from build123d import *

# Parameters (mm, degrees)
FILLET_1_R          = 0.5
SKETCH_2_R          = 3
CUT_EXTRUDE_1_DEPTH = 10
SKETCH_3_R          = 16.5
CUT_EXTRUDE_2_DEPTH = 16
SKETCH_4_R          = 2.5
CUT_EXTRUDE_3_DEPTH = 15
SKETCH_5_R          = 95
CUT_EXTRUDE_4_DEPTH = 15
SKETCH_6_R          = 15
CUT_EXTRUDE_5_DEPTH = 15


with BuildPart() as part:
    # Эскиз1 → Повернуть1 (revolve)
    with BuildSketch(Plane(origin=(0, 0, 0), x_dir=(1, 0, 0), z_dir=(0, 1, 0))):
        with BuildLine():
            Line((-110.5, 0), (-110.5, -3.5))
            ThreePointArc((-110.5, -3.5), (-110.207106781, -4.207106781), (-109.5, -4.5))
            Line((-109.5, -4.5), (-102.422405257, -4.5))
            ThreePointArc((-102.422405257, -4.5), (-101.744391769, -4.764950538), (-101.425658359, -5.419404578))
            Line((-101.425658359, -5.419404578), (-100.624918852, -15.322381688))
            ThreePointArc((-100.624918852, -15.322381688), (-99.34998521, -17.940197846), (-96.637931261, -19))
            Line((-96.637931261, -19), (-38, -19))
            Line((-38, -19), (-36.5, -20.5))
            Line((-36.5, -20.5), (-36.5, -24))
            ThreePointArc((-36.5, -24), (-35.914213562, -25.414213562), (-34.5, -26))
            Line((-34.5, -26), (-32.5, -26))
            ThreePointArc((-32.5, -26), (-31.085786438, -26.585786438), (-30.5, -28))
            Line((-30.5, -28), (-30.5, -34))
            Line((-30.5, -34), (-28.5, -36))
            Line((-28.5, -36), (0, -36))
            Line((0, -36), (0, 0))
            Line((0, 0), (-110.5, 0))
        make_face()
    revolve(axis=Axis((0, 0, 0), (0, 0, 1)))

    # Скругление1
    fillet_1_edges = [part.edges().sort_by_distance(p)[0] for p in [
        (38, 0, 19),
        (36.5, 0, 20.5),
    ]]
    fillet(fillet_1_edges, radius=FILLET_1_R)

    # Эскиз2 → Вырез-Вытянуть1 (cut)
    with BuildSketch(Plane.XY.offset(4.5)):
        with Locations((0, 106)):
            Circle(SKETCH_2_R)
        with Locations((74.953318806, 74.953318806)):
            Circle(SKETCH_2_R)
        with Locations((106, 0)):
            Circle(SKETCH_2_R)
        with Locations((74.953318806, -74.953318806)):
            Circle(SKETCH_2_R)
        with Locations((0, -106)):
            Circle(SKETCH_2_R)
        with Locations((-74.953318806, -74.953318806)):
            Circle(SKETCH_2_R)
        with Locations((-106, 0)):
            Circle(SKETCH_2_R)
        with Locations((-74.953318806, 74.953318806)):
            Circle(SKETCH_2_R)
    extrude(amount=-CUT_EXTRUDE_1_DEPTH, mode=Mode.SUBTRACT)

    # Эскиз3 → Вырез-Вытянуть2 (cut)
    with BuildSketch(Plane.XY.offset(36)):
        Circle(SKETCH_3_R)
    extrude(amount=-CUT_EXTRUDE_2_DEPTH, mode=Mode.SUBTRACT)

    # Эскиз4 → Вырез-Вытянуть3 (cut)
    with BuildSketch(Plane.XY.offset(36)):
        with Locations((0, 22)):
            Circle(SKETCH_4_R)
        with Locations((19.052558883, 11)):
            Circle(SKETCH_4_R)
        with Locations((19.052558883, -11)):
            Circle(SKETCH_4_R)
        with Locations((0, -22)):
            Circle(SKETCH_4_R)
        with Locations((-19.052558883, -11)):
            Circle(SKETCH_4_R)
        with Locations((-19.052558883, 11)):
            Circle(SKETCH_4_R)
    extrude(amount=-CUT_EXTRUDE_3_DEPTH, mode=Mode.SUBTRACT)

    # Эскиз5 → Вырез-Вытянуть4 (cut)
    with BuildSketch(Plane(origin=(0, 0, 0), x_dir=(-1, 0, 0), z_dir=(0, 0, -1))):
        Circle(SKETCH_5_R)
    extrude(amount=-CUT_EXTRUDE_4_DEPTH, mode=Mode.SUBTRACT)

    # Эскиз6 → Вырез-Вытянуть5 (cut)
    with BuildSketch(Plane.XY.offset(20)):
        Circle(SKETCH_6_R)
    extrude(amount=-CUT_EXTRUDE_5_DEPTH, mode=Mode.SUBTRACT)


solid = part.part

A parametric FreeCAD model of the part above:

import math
import FreeCAD as App
import Part
import Sketcher
Q = App.Units.Quantity


def edges_at(feature, points):
    """Names of the edges that pass closest to the given points."""
    edges = feature.Shape.Edges
    near = lambda p: min(range(len(edges)), key=lambda i: edges[i].distToShape(Part.Vertex(*p))[0])
    return sorted({f"Edge{near(p) + 1}" for p in points})

doc = App.newDocument("Part")
params = doc.addObject("Spreadsheet::Sheet", "Params")
for row, (alias, value) in enumerate([
    ("sketch1_radius", "1 mm"),
    ("sketch1_radius2", "4 mm"),
    ("sketch1_radius3", "2 mm"),
    ("sketch1_width", "2 mm"),
    ("sketch1_height", "6 mm"),
    ("revolution_angle", "360 deg"),
    ("fillet_radius", "0.5 mm"),
    ("sketch2_diameter", "6 mm"),
    ("pocket1_length", "10 mm"),
    ("sketch3_diameter", "33 mm"),
    ("pocket2_length", "16 mm"),
    ("sketch4_diameter", "5 mm"),
    ("pocket3_length", "15 mm"),
    ("sketch5_diameter", "190 mm"),
    ("pocket4_length", "15 mm"),
    ("sketch6_diameter", "30 mm"),
    ("pocket5_length", "15 mm"),
], start=1):
    params.set(f"A{row}", alias)
    params.set(f"B{row}", "=" + value)
    params.setAlias(f"B{row}", alias)

body = doc.addObject("PartDesign::Body", "Body")

sketch1 = body.newObject("Sketcher::SketchObject", "Sketch")
sketch1.AttachmentSupport = (doc.getObject("XZ_Plane"), [""])
sketch1.MapMode = "FlatFace"
sketch1.addGeometry([
    Part.LineSegment(App.Vector(-110.5, 0, 0), App.Vector(-110.5, 3.5, 0)),
    Part.ArcOfCircle(Part.Circle(App.Vector(-109.5, 3.5, 0), App.Vector(0, 0, 1), 1), math.radians(90), math.radians(180)),
    Part.LineSegment(App.Vector(-109.5, 4.5, 0), App.Vector(-102.4, 4.5, 0)),
    Part.ArcOfCircle(Part.Circle(App.Vector(-102.4, 5.5, 0), App.Vector(0, 0, 1), 1), math.radians(-90), math.radians(-5)),
    Part.LineSegment(App.Vector(-101.4, 5.4, 0), App.Vector(-100.6, 15.3, 0)),
    Part.ArcOfCircle(Part.Circle(App.Vector(-96.6, 15, 0), App.Vector(0, 0, 1), 4), math.radians(90), math.radians(175)),
    Part.LineSegment(App.Vector(-96.6, 19, 0), App.Vector(-38, 19, 0)),
    Part.LineSegment(App.Vector(-38, 19, 0), App.Vector(-36.5, 20.5, 0)),
    Part.LineSegment(App.Vector(-36.5, 20.5, 0), App.Vector(-36.5, 24, 0)),
    Part.ArcOfCircle(Part.Circle(App.Vector(-34.5, 24, 0), App.Vector(0, 0, 1), 2), math.radians(90), math.radians(180)),
    Part.LineSegment(App.Vector(-34.5, 26, 0), App.Vector(-32.5, 26, 0)),
    Part.ArcOfCircle(Part.Circle(App.Vector(-32.5, 28, 0), App.Vector(0, 0, 1), 2), math.radians(-90), math.radians(0)),
    Part.LineSegment(App.Vector(-30.5, 28, 0), App.Vector(-30.5, 34, 0)),
    Part.LineSegment(App.Vector(-30.5, 34, 0), App.Vector(-28.5, 36, 0)),
    Part.LineSegment(App.Vector(-28.5, 36, 0), App.Vector(0, 36, 0)),
    Part.LineSegment(App.Vector(0, 36, 0), App.Vector(0, 0, 0)),
    Part.LineSegment(App.Vector(0, 0, 0), App.Vector(-110.5, 0, 0)),
], False)
sketch1.addConstraint([
    Sketcher.Constraint("Tangent", 0, 2, 1, 2),
    Sketcher.Constraint("Tangent", 1, 1, 2, 1),
    Sketcher.Constraint("Tangent", 2, 2, 3, 1),
    Sketcher.Constraint("Tangent", 3, 2, 4, 1),
    Sketcher.Constraint("Tangent", 4, 2, 5, 2),
    Sketcher.Constraint("Tangent", 5, 1, 6, 1),
    Sketcher.Constraint("Coincident", 6, 2, 7, 1),
    Sketcher.Constraint("Coincident", 7, 2, 8, 1),
    Sketcher.Constraint("Tangent", 8, 2, 9, 2),
    Sketcher.Constraint("Tangent", 9, 1, 10, 1),
    Sketcher.Constraint("Tangent", 10, 2, 11, 1),
    Sketcher.Constraint("Tangent", 11, 2, 12, 1),
    Sketcher.Constraint("Coincident", 12, 2, 13, 1),
    Sketcher.Constraint("Coincident", 13, 2, 14, 1),
    Sketcher.Constraint("Coincident", 14, 2, 15, 1),
    Sketcher.Constraint("Coincident", 15, 2, 16, 1),
    Sketcher.Constraint("Coincident", 16, 2, 0, 1),
    Sketcher.Constraint("Vertical", 0),
    Sketcher.Constraint("Horizontal", 2),
    Sketcher.Constraint("Horizontal", 6),
    Sketcher.Constraint("Vertical", 8),
    Sketcher.Constraint("Horizontal", 10),
    Sketcher.Constraint("Vertical", 12),
    Sketcher.Constraint("Horizontal", 14),
    Sketcher.Constraint("Vertical", 15),
    Sketcher.Constraint("Horizontal", 16),
    Sketcher.Constraint("Coincident", 15, 2, -1, 1),
    Sketcher.Constraint("Equal", 1, 3),
    Sketcher.Constraint("Equal", 9, 11),
    Sketcher.Constraint("Parallel", 7, 13),
    Sketcher.Constraint("Equal", 0, 8),
    Sketcher.Constraint("Radius", 1, Q("1 mm")),
    Sketcher.Constraint("Radius", 5, Q("4 mm")),
    Sketcher.Constraint("Radius", 9, Q("2 mm")),
    Sketcher.Constraint("DistanceX", 10, 1, 10, 2, Q("2 mm")),
    Sketcher.Constraint("DistanceY", 12, 1, 12, 2, Q("6 mm")),
    Sketcher.Constraint("DistanceY", 15, 2, 15, 1, Q("36 mm")),
    Sketcher.Constraint("Angle", 7, Q("45 deg")),
    Sketcher.Constraint("DistanceX", 14, 1, 14, 2, Q("28.5 mm")),
    Sketcher.Constraint("DistanceX", 16, 2, 16, 1, Q("110.5 mm")),
    Sketcher.Constraint("DistanceY", 0, 1, 0, 2, Q("3.5 mm")),
    Sketcher.Constraint("DistanceY", -1, 1, 5, 3, Q("15 mm")),
    Sketcher.Constraint("DistanceY", -1, 1, 9, 3, Q("24 mm")),
    Sketcher.Constraint("DistanceX", 6, 1, 6, 2, Q("58.637931 mm")),
    Sketcher.Constraint("DistanceX", 2, 1, 2, 2, Q("7.077595 mm")),
])
sketch1.setExpression("Constraints[31]", "Params.sketch1_radius")
sketch1.setExpression("Constraints[32]", "Params.sketch1_radius2")
sketch1.setExpression("Constraints[33]", "Params.sketch1_radius3")
sketch1.setExpression("Constraints[34]", "Params.sketch1_width")
sketch1.setExpression("Constraints[35]", "Params.sketch1_height")
revolution = body.newObject("PartDesign::Revolution", "Revolution")
revolution.Profile = sketch1
revolution.ReferenceAxis = (sketch1, ["V_Axis"])
revolution.setExpression("Angle", "Params.revolution_angle")
doc.recompute()

fillet = body.newObject("PartDesign::Fillet", "Fillet")
fillet.Base = (revolution, edges_at(revolution, [(38, 0, 19), (36.5, 0, 20.5)]))
fillet.setExpression("Radius", "Params.fillet_radius")

sketch2 = body.newObject("Sketcher::SketchObject", "Sketch001")
sketch2.AttachmentSupport = (doc.getObject("XY_Plane"), [""])
sketch2.MapMode = "FlatFace"
sketch2.AttachmentOffset = App.Placement(App.Vector(0, 0, 4.5), App.Rotation())
sketch2.addGeometry([
    Part.Circle(App.Vector(0, 106, 0), App.Vector(0, 0, 1), 3),
    Part.Circle(App.Vector(75, 75, 0), App.Vector(0, 0, 1), 3),
    Part.Circle(App.Vector(106, 0, 0), App.Vector(0, 0, 1), 3),
    Part.Circle(App.Vector(75, -75, 0), App.Vector(0, 0, 1), 3),
    Part.Circle(App.Vector(0, -106, 0), App.Vector(0, 0, 1), 3),
    Part.Circle(App.Vector(-75, -75, 0), App.Vector(0, 0, 1), 3),
    Part.Circle(App.Vector(-106, 0, 0), App.Vector(0, 0, 1), 3),
    Part.Circle(App.Vector(-75, 75, 0), App.Vector(0, 0, 1), 3),
], False)
sketch2.addConstraint([
    Sketcher.Constraint("Equal", 0, 1),
    Sketcher.Constraint("Equal", 1, 2),
    Sketcher.Constraint("Equal", 2, 3),
    Sketcher.Constraint("Equal", 3, 4),
    Sketcher.Constraint("Equal", 4, 5),
    Sketcher.Constraint("Equal", 5, 6),
    Sketcher.Constraint("Equal", 6, 7),
    Sketcher.Constraint("Symmetric", 0, 3, 4, 3, -1, 1),
    Sketcher.Constraint("Symmetric", 1, 3, 5, 3, -1, 1),
    Sketcher.Constraint("Symmetric", 2, 3, 6, 3, -1, 1),
    Sketcher.Constraint("Symmetric", 3, 3, 7, 3, -1, 1),
    Sketcher.Constraint("Symmetric", 3, 3, 5, 3, -2),
    Sketcher.Constraint("PointOnObject", 0, 3, -2),
    Sketcher.Constraint("PointOnObject", 2, 3, -1),
    Sketcher.Constraint("Diameter", 0, Q("6 mm")),
    Sketcher.Constraint("DistanceY", -1, 1, 0, 3, Q("106 mm")),
    Sketcher.Constraint("DistanceX", -1, 1, 2, 3, Q("106 mm")),
    Sketcher.Constraint("DistanceX", -1, 1, 1, 3, Q("74.953319 mm")),
    Sketcher.Constraint("DistanceY", -1, 1, 1, 3, Q("74.953319 mm")),
])
sketch2.setExpression("Constraints[14]", "Params.sketch2_diameter")
pocket1 = body.newObject("PartDesign::Pocket", "Pocket")
pocket1.Profile = sketch2
pocket1.setExpression("Length", "Params.pocket1_length")

sketch3 = body.newObject("Sketcher::SketchObject", "Sketch002")
sketch3.AttachmentSupport = (doc.getObject("XY_Plane"), [""])
sketch3.MapMode = "FlatFace"
sketch3.AttachmentOffset = App.Placement(App.Vector(0, 0, 36), App.Rotation())
sketch3.addGeometry(Part.Circle(App.Vector(0, 0, 0), App.Vector(0, 0, 1), 16), False)
sketch3.addConstraint([
    Sketcher.Constraint("Coincident", 0, 3, -1, 1),
    Sketcher.Constraint("Diameter", 0, Q("33 mm")),
])
sketch3.setExpression("Constraints[1]", "Params.sketch3_diameter")
pocket2 = body.newObject("PartDesign::Pocket", "Pocket001")
pocket2.Profile = sketch3
pocket2.setExpression("Length", "Params.pocket2_length")

sketch4 = body.newObject("Sketcher::SketchObject", "Sketch003")
sketch4.AttachmentSupport = (doc.getObject("XY_Plane"), [""])
sketch4.MapMode = "FlatFace"
sketch4.AttachmentOffset = App.Placement(App.Vector(0, 0, 36), App.Rotation())
sketch4.addGeometry([
    Part.Circle(App.Vector(0, 22, 0), App.Vector(0, 0, 1), 2.5),
    Part.Circle(App.Vector(19.1, 11, 0), App.Vector(0, 0, 1), 2.5),
    Part.Circle(App.Vector(19.1, -11, 0), App.Vector(0, 0, 1), 2.5),
    Part.Circle(App.Vector(0, -22, 0), App.Vector(0, 0, 1), 2.5),
    Part.Circle(App.Vector(-19.1, -11, 0), App.Vector(0, 0, 1), 2.5),
    Part.Circle(App.Vector(-19.1, 11, 0), App.Vector(0, 0, 1), 2.5),
], False)
sketch4.addConstraint([
    Sketcher.Constraint("Equal", 0, 1),
    Sketcher.Constraint("Equal", 1, 2),
    Sketcher.Constraint("Equal", 2, 3),
    Sketcher.Constraint("Equal", 3, 4),
    Sketcher.Constraint("Equal", 4, 5),
    Sketcher.Constraint("Symmetric", 0, 3, 3, 3, -1, 1),
    Sketcher.Constraint("Symmetric", 1, 3, 4, 3, -1, 1),
    Sketcher.Constraint("Symmetric", 2, 3, 5, 3, -1, 1),
    Sketcher.Constraint("Symmetric", 2, 3, 4, 3, -2),
    Sketcher.Constraint("PointOnObject", 0, 3, -2),
    Sketcher.Constraint("Diameter", 0, Q("5 mm")),
    Sketcher.Constraint("DistanceY", -1, 1, 0, 3, Q("22 mm")),
    Sketcher.Constraint("DistanceY", -1, 1, 1, 3, Q("11 mm")),
    Sketcher.Constraint("DistanceX", -1, 1, 1, 3, Q("19.052559 mm")),
])
sketch4.setExpression("Constraints[10]", "Params.sketch4_diameter")
pocket3 = body.newObject("PartDesign::Pocket", "Pocket002")
pocket3.Profile = sketch4
pocket3.setExpression("Length", "Params.pocket3_length")

sketch5 = body.newObject("Sketcher::SketchObject", "Sketch004")
sketch5.AttachmentSupport = (doc.getObject("XY_Plane"), [""])
sketch5.MapMode = "FlatFace"
sketch5.addGeometry(Part.Circle(App.Vector(0, 0, 0), App.Vector(0, 0, 1), 95), False)
sketch5.addConstraint([
    Sketcher.Constraint("Coincident", 0, 3, -1, 1),
    Sketcher.Constraint("Diameter", 0, Q("190 mm")),
])
sketch5.setExpression("Constraints[1]", "Params.sketch5_diameter")
pocket4 = body.newObject("PartDesign::Pocket", "Pocket003")
pocket4.Profile = sketch5
pocket4.setExpression("Length", "Params.pocket4_length")
pocket4.Reversed = True

sketch6 = body.newObject("Sketcher::SketchObject", "Sketch005")
sketch6.AttachmentSupport = (doc.getObject("XY_Plane"), [""])
sketch6.MapMode = "FlatFace"
sketch6.AttachmentOffset = App.Placement(App.Vector(0, 0, 20), App.Rotation())
sketch6.addGeometry(Part.Circle(App.Vector(0, 0, 0), App.Vector(0, 0, 1), 15), False)
sketch6.addConstraint([
    Sketcher.Constraint("Coincident", 0, 3, -1, 1),
    Sketcher.Constraint("Diameter", 0, Q("30 mm")),
])
sketch6.setExpression("Constraints[1]", "Params.sketch6_diameter")
pocket5 = body.newObject("PartDesign::Pocket", "Pocket004")
pocket5.Profile = sketch6
pocket5.setExpression("Length", "Params.pocket5_length")

doc.recompute()
